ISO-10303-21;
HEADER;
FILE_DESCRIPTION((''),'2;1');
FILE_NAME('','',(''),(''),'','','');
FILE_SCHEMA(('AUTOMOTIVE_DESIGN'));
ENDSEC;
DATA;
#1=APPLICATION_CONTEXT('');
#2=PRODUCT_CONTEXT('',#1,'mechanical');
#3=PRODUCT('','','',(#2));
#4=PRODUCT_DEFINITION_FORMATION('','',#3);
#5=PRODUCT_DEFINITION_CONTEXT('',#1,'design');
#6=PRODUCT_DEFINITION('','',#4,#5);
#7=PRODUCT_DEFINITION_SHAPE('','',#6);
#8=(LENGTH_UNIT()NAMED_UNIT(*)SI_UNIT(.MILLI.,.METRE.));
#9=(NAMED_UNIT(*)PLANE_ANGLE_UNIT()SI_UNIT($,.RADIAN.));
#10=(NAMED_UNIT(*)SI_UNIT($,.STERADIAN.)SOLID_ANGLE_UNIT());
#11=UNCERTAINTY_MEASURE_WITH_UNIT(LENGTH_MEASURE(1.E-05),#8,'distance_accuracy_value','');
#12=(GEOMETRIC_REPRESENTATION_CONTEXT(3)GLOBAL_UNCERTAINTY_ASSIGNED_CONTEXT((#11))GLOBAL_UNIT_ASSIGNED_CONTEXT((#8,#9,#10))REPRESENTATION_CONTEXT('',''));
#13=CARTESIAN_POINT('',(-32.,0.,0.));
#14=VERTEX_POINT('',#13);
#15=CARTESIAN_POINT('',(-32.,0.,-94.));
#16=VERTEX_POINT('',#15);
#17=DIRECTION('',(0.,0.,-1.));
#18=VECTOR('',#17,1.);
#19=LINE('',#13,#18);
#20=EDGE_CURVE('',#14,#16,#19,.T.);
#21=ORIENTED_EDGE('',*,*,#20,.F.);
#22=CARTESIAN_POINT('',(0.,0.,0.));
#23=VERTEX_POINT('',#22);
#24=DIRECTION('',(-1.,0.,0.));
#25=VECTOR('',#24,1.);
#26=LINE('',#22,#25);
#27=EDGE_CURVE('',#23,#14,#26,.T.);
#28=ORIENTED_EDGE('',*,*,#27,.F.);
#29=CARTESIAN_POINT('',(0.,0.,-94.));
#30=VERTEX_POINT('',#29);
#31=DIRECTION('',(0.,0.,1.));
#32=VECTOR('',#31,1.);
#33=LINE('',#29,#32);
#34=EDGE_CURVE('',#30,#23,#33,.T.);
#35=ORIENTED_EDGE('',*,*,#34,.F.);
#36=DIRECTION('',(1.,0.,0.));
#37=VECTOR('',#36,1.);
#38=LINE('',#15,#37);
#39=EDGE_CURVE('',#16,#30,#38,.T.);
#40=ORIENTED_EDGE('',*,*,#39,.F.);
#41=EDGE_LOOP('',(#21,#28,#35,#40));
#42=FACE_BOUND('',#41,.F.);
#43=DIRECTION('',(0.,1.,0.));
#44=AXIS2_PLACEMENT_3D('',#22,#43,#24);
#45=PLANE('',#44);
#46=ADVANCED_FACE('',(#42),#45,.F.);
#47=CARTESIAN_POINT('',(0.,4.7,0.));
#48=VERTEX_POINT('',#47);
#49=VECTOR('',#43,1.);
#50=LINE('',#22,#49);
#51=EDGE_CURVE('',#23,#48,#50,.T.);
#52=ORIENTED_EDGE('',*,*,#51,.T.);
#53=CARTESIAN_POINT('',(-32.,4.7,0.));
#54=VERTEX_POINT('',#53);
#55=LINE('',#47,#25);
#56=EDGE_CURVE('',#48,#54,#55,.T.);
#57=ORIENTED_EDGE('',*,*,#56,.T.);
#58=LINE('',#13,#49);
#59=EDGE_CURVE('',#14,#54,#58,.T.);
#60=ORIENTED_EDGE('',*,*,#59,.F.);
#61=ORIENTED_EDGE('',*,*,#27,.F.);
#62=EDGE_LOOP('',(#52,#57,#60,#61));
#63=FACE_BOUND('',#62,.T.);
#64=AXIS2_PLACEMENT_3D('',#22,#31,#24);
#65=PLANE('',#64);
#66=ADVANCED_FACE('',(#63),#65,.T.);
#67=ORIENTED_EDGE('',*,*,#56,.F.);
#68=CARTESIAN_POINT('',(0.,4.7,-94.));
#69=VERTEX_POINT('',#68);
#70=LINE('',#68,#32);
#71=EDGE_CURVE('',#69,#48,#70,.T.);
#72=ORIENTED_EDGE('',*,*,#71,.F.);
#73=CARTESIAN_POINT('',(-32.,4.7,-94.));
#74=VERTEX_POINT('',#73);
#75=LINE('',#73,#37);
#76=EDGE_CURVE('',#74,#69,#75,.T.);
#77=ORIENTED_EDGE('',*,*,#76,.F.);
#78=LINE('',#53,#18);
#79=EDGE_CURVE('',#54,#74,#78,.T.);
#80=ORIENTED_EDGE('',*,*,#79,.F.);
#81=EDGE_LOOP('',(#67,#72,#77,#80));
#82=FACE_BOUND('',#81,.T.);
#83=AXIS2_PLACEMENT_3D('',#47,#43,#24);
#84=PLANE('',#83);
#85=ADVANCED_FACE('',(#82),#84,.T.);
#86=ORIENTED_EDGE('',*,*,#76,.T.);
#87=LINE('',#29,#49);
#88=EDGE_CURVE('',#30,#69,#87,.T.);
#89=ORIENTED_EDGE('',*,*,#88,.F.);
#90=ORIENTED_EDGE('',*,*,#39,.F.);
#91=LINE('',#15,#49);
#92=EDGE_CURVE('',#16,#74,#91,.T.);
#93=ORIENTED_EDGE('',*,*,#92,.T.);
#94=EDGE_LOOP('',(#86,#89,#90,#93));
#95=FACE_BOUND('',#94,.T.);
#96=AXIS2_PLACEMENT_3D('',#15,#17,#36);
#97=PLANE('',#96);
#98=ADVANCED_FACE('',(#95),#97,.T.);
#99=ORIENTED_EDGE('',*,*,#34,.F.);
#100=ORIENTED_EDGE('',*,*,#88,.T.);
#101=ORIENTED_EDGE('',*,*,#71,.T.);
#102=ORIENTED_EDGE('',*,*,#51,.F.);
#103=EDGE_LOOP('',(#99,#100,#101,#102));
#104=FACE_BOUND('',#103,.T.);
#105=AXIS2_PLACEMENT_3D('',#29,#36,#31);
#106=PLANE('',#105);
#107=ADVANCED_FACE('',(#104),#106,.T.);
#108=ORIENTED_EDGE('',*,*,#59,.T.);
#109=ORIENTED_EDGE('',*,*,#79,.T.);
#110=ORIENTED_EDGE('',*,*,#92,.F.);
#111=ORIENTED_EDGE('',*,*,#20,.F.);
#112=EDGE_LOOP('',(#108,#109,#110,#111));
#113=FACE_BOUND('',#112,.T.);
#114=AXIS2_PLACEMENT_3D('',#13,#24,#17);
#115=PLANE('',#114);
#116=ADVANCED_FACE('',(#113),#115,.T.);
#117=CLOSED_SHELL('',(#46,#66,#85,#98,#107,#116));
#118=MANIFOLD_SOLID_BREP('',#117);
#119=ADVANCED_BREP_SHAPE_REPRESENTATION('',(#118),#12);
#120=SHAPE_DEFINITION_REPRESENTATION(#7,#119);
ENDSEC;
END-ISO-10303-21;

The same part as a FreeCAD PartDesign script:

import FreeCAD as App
import Part
import Sketcher
from FreeCAD import Vector
Q = App.Units.Quantity


def add_polygon(sketch, points):
    """Adds a closed chain of lines whose ends are joined by coincident constraints."""
    first, n = sketch.GeometryCount, len(points)
    for a, b in zip(points, points[1:] + points[:1]):
        sketch.addGeometry(Part.LineSegment(App.Vector(*a, 0), App.Vector(*b, 0)), False)
    for i in range(n):
        sketch.addConstraint(Sketcher.Constraint("Coincident", first + i, 2, first + (i + 1) % n, 1))

doc = App.newDocument("Part")
params = doc.addObject("Spreadsheet::Sheet", "Params")
for row, (alias, value) in enumerate([
    ("sketch1_width", "32 mm"),
    ("sketch1_height", "94 mm"),
    ("pad1_length", "4.7 mm"),
], start=1):
    params.set(f"A{row}", alias)
    params.set(f"B{row}", "=" + value)
    params.setAlias(f"B{row}", alias)

body = doc.addObject("PartDesign::Body", "Body")

# Sketch on XZ plane
sketch1 = body.newObject("Sketcher::SketchObject", "Sketch")
sketch1.AttachmentSupport = (doc.getObject("XZ_Plane"), [""])
sketch1.MapMode = "FlatFace"
add_polygon(sketch1, [(-32, 0), (0, 0), (0, -94), (-32, -94)])  # lines 0-3
sketch1.addConstraint(Sketcher.Constraint("Horizontal", 0))
sketch1.addConstraint(Sketcher.Constraint("Vertical", 1))
sketch1.addConstraint(Sketcher.Constraint("Horizontal", 2))
sketch1.addConstraint(Sketcher.Constraint("Vertical", 3))
sketch1.addConstraint(Sketcher.Constraint("Coincident", 0, 2, -1, 1))
sketch1.addConstraint(Sketcher.Constraint("DistanceX", 0, 1, 0, 2, Q("32 mm")))
sketch1.addConstraint(Sketcher.Constraint("DistanceY", 1, 2, 1, 1, Q("94 mm")))
sketch1.setExpression("Constraints[9]", "Params.sketch1_width")
sketch1.setExpression("Constraints[10]", "Params.sketch1_height")
pad1 = body.newObject("PartDesign::Pad", "Pad")
pad1.Profile = sketch1
pad1.setExpression("Length", "Params.pad1_length")
pad1.Reversed = True

doc.recompute()
